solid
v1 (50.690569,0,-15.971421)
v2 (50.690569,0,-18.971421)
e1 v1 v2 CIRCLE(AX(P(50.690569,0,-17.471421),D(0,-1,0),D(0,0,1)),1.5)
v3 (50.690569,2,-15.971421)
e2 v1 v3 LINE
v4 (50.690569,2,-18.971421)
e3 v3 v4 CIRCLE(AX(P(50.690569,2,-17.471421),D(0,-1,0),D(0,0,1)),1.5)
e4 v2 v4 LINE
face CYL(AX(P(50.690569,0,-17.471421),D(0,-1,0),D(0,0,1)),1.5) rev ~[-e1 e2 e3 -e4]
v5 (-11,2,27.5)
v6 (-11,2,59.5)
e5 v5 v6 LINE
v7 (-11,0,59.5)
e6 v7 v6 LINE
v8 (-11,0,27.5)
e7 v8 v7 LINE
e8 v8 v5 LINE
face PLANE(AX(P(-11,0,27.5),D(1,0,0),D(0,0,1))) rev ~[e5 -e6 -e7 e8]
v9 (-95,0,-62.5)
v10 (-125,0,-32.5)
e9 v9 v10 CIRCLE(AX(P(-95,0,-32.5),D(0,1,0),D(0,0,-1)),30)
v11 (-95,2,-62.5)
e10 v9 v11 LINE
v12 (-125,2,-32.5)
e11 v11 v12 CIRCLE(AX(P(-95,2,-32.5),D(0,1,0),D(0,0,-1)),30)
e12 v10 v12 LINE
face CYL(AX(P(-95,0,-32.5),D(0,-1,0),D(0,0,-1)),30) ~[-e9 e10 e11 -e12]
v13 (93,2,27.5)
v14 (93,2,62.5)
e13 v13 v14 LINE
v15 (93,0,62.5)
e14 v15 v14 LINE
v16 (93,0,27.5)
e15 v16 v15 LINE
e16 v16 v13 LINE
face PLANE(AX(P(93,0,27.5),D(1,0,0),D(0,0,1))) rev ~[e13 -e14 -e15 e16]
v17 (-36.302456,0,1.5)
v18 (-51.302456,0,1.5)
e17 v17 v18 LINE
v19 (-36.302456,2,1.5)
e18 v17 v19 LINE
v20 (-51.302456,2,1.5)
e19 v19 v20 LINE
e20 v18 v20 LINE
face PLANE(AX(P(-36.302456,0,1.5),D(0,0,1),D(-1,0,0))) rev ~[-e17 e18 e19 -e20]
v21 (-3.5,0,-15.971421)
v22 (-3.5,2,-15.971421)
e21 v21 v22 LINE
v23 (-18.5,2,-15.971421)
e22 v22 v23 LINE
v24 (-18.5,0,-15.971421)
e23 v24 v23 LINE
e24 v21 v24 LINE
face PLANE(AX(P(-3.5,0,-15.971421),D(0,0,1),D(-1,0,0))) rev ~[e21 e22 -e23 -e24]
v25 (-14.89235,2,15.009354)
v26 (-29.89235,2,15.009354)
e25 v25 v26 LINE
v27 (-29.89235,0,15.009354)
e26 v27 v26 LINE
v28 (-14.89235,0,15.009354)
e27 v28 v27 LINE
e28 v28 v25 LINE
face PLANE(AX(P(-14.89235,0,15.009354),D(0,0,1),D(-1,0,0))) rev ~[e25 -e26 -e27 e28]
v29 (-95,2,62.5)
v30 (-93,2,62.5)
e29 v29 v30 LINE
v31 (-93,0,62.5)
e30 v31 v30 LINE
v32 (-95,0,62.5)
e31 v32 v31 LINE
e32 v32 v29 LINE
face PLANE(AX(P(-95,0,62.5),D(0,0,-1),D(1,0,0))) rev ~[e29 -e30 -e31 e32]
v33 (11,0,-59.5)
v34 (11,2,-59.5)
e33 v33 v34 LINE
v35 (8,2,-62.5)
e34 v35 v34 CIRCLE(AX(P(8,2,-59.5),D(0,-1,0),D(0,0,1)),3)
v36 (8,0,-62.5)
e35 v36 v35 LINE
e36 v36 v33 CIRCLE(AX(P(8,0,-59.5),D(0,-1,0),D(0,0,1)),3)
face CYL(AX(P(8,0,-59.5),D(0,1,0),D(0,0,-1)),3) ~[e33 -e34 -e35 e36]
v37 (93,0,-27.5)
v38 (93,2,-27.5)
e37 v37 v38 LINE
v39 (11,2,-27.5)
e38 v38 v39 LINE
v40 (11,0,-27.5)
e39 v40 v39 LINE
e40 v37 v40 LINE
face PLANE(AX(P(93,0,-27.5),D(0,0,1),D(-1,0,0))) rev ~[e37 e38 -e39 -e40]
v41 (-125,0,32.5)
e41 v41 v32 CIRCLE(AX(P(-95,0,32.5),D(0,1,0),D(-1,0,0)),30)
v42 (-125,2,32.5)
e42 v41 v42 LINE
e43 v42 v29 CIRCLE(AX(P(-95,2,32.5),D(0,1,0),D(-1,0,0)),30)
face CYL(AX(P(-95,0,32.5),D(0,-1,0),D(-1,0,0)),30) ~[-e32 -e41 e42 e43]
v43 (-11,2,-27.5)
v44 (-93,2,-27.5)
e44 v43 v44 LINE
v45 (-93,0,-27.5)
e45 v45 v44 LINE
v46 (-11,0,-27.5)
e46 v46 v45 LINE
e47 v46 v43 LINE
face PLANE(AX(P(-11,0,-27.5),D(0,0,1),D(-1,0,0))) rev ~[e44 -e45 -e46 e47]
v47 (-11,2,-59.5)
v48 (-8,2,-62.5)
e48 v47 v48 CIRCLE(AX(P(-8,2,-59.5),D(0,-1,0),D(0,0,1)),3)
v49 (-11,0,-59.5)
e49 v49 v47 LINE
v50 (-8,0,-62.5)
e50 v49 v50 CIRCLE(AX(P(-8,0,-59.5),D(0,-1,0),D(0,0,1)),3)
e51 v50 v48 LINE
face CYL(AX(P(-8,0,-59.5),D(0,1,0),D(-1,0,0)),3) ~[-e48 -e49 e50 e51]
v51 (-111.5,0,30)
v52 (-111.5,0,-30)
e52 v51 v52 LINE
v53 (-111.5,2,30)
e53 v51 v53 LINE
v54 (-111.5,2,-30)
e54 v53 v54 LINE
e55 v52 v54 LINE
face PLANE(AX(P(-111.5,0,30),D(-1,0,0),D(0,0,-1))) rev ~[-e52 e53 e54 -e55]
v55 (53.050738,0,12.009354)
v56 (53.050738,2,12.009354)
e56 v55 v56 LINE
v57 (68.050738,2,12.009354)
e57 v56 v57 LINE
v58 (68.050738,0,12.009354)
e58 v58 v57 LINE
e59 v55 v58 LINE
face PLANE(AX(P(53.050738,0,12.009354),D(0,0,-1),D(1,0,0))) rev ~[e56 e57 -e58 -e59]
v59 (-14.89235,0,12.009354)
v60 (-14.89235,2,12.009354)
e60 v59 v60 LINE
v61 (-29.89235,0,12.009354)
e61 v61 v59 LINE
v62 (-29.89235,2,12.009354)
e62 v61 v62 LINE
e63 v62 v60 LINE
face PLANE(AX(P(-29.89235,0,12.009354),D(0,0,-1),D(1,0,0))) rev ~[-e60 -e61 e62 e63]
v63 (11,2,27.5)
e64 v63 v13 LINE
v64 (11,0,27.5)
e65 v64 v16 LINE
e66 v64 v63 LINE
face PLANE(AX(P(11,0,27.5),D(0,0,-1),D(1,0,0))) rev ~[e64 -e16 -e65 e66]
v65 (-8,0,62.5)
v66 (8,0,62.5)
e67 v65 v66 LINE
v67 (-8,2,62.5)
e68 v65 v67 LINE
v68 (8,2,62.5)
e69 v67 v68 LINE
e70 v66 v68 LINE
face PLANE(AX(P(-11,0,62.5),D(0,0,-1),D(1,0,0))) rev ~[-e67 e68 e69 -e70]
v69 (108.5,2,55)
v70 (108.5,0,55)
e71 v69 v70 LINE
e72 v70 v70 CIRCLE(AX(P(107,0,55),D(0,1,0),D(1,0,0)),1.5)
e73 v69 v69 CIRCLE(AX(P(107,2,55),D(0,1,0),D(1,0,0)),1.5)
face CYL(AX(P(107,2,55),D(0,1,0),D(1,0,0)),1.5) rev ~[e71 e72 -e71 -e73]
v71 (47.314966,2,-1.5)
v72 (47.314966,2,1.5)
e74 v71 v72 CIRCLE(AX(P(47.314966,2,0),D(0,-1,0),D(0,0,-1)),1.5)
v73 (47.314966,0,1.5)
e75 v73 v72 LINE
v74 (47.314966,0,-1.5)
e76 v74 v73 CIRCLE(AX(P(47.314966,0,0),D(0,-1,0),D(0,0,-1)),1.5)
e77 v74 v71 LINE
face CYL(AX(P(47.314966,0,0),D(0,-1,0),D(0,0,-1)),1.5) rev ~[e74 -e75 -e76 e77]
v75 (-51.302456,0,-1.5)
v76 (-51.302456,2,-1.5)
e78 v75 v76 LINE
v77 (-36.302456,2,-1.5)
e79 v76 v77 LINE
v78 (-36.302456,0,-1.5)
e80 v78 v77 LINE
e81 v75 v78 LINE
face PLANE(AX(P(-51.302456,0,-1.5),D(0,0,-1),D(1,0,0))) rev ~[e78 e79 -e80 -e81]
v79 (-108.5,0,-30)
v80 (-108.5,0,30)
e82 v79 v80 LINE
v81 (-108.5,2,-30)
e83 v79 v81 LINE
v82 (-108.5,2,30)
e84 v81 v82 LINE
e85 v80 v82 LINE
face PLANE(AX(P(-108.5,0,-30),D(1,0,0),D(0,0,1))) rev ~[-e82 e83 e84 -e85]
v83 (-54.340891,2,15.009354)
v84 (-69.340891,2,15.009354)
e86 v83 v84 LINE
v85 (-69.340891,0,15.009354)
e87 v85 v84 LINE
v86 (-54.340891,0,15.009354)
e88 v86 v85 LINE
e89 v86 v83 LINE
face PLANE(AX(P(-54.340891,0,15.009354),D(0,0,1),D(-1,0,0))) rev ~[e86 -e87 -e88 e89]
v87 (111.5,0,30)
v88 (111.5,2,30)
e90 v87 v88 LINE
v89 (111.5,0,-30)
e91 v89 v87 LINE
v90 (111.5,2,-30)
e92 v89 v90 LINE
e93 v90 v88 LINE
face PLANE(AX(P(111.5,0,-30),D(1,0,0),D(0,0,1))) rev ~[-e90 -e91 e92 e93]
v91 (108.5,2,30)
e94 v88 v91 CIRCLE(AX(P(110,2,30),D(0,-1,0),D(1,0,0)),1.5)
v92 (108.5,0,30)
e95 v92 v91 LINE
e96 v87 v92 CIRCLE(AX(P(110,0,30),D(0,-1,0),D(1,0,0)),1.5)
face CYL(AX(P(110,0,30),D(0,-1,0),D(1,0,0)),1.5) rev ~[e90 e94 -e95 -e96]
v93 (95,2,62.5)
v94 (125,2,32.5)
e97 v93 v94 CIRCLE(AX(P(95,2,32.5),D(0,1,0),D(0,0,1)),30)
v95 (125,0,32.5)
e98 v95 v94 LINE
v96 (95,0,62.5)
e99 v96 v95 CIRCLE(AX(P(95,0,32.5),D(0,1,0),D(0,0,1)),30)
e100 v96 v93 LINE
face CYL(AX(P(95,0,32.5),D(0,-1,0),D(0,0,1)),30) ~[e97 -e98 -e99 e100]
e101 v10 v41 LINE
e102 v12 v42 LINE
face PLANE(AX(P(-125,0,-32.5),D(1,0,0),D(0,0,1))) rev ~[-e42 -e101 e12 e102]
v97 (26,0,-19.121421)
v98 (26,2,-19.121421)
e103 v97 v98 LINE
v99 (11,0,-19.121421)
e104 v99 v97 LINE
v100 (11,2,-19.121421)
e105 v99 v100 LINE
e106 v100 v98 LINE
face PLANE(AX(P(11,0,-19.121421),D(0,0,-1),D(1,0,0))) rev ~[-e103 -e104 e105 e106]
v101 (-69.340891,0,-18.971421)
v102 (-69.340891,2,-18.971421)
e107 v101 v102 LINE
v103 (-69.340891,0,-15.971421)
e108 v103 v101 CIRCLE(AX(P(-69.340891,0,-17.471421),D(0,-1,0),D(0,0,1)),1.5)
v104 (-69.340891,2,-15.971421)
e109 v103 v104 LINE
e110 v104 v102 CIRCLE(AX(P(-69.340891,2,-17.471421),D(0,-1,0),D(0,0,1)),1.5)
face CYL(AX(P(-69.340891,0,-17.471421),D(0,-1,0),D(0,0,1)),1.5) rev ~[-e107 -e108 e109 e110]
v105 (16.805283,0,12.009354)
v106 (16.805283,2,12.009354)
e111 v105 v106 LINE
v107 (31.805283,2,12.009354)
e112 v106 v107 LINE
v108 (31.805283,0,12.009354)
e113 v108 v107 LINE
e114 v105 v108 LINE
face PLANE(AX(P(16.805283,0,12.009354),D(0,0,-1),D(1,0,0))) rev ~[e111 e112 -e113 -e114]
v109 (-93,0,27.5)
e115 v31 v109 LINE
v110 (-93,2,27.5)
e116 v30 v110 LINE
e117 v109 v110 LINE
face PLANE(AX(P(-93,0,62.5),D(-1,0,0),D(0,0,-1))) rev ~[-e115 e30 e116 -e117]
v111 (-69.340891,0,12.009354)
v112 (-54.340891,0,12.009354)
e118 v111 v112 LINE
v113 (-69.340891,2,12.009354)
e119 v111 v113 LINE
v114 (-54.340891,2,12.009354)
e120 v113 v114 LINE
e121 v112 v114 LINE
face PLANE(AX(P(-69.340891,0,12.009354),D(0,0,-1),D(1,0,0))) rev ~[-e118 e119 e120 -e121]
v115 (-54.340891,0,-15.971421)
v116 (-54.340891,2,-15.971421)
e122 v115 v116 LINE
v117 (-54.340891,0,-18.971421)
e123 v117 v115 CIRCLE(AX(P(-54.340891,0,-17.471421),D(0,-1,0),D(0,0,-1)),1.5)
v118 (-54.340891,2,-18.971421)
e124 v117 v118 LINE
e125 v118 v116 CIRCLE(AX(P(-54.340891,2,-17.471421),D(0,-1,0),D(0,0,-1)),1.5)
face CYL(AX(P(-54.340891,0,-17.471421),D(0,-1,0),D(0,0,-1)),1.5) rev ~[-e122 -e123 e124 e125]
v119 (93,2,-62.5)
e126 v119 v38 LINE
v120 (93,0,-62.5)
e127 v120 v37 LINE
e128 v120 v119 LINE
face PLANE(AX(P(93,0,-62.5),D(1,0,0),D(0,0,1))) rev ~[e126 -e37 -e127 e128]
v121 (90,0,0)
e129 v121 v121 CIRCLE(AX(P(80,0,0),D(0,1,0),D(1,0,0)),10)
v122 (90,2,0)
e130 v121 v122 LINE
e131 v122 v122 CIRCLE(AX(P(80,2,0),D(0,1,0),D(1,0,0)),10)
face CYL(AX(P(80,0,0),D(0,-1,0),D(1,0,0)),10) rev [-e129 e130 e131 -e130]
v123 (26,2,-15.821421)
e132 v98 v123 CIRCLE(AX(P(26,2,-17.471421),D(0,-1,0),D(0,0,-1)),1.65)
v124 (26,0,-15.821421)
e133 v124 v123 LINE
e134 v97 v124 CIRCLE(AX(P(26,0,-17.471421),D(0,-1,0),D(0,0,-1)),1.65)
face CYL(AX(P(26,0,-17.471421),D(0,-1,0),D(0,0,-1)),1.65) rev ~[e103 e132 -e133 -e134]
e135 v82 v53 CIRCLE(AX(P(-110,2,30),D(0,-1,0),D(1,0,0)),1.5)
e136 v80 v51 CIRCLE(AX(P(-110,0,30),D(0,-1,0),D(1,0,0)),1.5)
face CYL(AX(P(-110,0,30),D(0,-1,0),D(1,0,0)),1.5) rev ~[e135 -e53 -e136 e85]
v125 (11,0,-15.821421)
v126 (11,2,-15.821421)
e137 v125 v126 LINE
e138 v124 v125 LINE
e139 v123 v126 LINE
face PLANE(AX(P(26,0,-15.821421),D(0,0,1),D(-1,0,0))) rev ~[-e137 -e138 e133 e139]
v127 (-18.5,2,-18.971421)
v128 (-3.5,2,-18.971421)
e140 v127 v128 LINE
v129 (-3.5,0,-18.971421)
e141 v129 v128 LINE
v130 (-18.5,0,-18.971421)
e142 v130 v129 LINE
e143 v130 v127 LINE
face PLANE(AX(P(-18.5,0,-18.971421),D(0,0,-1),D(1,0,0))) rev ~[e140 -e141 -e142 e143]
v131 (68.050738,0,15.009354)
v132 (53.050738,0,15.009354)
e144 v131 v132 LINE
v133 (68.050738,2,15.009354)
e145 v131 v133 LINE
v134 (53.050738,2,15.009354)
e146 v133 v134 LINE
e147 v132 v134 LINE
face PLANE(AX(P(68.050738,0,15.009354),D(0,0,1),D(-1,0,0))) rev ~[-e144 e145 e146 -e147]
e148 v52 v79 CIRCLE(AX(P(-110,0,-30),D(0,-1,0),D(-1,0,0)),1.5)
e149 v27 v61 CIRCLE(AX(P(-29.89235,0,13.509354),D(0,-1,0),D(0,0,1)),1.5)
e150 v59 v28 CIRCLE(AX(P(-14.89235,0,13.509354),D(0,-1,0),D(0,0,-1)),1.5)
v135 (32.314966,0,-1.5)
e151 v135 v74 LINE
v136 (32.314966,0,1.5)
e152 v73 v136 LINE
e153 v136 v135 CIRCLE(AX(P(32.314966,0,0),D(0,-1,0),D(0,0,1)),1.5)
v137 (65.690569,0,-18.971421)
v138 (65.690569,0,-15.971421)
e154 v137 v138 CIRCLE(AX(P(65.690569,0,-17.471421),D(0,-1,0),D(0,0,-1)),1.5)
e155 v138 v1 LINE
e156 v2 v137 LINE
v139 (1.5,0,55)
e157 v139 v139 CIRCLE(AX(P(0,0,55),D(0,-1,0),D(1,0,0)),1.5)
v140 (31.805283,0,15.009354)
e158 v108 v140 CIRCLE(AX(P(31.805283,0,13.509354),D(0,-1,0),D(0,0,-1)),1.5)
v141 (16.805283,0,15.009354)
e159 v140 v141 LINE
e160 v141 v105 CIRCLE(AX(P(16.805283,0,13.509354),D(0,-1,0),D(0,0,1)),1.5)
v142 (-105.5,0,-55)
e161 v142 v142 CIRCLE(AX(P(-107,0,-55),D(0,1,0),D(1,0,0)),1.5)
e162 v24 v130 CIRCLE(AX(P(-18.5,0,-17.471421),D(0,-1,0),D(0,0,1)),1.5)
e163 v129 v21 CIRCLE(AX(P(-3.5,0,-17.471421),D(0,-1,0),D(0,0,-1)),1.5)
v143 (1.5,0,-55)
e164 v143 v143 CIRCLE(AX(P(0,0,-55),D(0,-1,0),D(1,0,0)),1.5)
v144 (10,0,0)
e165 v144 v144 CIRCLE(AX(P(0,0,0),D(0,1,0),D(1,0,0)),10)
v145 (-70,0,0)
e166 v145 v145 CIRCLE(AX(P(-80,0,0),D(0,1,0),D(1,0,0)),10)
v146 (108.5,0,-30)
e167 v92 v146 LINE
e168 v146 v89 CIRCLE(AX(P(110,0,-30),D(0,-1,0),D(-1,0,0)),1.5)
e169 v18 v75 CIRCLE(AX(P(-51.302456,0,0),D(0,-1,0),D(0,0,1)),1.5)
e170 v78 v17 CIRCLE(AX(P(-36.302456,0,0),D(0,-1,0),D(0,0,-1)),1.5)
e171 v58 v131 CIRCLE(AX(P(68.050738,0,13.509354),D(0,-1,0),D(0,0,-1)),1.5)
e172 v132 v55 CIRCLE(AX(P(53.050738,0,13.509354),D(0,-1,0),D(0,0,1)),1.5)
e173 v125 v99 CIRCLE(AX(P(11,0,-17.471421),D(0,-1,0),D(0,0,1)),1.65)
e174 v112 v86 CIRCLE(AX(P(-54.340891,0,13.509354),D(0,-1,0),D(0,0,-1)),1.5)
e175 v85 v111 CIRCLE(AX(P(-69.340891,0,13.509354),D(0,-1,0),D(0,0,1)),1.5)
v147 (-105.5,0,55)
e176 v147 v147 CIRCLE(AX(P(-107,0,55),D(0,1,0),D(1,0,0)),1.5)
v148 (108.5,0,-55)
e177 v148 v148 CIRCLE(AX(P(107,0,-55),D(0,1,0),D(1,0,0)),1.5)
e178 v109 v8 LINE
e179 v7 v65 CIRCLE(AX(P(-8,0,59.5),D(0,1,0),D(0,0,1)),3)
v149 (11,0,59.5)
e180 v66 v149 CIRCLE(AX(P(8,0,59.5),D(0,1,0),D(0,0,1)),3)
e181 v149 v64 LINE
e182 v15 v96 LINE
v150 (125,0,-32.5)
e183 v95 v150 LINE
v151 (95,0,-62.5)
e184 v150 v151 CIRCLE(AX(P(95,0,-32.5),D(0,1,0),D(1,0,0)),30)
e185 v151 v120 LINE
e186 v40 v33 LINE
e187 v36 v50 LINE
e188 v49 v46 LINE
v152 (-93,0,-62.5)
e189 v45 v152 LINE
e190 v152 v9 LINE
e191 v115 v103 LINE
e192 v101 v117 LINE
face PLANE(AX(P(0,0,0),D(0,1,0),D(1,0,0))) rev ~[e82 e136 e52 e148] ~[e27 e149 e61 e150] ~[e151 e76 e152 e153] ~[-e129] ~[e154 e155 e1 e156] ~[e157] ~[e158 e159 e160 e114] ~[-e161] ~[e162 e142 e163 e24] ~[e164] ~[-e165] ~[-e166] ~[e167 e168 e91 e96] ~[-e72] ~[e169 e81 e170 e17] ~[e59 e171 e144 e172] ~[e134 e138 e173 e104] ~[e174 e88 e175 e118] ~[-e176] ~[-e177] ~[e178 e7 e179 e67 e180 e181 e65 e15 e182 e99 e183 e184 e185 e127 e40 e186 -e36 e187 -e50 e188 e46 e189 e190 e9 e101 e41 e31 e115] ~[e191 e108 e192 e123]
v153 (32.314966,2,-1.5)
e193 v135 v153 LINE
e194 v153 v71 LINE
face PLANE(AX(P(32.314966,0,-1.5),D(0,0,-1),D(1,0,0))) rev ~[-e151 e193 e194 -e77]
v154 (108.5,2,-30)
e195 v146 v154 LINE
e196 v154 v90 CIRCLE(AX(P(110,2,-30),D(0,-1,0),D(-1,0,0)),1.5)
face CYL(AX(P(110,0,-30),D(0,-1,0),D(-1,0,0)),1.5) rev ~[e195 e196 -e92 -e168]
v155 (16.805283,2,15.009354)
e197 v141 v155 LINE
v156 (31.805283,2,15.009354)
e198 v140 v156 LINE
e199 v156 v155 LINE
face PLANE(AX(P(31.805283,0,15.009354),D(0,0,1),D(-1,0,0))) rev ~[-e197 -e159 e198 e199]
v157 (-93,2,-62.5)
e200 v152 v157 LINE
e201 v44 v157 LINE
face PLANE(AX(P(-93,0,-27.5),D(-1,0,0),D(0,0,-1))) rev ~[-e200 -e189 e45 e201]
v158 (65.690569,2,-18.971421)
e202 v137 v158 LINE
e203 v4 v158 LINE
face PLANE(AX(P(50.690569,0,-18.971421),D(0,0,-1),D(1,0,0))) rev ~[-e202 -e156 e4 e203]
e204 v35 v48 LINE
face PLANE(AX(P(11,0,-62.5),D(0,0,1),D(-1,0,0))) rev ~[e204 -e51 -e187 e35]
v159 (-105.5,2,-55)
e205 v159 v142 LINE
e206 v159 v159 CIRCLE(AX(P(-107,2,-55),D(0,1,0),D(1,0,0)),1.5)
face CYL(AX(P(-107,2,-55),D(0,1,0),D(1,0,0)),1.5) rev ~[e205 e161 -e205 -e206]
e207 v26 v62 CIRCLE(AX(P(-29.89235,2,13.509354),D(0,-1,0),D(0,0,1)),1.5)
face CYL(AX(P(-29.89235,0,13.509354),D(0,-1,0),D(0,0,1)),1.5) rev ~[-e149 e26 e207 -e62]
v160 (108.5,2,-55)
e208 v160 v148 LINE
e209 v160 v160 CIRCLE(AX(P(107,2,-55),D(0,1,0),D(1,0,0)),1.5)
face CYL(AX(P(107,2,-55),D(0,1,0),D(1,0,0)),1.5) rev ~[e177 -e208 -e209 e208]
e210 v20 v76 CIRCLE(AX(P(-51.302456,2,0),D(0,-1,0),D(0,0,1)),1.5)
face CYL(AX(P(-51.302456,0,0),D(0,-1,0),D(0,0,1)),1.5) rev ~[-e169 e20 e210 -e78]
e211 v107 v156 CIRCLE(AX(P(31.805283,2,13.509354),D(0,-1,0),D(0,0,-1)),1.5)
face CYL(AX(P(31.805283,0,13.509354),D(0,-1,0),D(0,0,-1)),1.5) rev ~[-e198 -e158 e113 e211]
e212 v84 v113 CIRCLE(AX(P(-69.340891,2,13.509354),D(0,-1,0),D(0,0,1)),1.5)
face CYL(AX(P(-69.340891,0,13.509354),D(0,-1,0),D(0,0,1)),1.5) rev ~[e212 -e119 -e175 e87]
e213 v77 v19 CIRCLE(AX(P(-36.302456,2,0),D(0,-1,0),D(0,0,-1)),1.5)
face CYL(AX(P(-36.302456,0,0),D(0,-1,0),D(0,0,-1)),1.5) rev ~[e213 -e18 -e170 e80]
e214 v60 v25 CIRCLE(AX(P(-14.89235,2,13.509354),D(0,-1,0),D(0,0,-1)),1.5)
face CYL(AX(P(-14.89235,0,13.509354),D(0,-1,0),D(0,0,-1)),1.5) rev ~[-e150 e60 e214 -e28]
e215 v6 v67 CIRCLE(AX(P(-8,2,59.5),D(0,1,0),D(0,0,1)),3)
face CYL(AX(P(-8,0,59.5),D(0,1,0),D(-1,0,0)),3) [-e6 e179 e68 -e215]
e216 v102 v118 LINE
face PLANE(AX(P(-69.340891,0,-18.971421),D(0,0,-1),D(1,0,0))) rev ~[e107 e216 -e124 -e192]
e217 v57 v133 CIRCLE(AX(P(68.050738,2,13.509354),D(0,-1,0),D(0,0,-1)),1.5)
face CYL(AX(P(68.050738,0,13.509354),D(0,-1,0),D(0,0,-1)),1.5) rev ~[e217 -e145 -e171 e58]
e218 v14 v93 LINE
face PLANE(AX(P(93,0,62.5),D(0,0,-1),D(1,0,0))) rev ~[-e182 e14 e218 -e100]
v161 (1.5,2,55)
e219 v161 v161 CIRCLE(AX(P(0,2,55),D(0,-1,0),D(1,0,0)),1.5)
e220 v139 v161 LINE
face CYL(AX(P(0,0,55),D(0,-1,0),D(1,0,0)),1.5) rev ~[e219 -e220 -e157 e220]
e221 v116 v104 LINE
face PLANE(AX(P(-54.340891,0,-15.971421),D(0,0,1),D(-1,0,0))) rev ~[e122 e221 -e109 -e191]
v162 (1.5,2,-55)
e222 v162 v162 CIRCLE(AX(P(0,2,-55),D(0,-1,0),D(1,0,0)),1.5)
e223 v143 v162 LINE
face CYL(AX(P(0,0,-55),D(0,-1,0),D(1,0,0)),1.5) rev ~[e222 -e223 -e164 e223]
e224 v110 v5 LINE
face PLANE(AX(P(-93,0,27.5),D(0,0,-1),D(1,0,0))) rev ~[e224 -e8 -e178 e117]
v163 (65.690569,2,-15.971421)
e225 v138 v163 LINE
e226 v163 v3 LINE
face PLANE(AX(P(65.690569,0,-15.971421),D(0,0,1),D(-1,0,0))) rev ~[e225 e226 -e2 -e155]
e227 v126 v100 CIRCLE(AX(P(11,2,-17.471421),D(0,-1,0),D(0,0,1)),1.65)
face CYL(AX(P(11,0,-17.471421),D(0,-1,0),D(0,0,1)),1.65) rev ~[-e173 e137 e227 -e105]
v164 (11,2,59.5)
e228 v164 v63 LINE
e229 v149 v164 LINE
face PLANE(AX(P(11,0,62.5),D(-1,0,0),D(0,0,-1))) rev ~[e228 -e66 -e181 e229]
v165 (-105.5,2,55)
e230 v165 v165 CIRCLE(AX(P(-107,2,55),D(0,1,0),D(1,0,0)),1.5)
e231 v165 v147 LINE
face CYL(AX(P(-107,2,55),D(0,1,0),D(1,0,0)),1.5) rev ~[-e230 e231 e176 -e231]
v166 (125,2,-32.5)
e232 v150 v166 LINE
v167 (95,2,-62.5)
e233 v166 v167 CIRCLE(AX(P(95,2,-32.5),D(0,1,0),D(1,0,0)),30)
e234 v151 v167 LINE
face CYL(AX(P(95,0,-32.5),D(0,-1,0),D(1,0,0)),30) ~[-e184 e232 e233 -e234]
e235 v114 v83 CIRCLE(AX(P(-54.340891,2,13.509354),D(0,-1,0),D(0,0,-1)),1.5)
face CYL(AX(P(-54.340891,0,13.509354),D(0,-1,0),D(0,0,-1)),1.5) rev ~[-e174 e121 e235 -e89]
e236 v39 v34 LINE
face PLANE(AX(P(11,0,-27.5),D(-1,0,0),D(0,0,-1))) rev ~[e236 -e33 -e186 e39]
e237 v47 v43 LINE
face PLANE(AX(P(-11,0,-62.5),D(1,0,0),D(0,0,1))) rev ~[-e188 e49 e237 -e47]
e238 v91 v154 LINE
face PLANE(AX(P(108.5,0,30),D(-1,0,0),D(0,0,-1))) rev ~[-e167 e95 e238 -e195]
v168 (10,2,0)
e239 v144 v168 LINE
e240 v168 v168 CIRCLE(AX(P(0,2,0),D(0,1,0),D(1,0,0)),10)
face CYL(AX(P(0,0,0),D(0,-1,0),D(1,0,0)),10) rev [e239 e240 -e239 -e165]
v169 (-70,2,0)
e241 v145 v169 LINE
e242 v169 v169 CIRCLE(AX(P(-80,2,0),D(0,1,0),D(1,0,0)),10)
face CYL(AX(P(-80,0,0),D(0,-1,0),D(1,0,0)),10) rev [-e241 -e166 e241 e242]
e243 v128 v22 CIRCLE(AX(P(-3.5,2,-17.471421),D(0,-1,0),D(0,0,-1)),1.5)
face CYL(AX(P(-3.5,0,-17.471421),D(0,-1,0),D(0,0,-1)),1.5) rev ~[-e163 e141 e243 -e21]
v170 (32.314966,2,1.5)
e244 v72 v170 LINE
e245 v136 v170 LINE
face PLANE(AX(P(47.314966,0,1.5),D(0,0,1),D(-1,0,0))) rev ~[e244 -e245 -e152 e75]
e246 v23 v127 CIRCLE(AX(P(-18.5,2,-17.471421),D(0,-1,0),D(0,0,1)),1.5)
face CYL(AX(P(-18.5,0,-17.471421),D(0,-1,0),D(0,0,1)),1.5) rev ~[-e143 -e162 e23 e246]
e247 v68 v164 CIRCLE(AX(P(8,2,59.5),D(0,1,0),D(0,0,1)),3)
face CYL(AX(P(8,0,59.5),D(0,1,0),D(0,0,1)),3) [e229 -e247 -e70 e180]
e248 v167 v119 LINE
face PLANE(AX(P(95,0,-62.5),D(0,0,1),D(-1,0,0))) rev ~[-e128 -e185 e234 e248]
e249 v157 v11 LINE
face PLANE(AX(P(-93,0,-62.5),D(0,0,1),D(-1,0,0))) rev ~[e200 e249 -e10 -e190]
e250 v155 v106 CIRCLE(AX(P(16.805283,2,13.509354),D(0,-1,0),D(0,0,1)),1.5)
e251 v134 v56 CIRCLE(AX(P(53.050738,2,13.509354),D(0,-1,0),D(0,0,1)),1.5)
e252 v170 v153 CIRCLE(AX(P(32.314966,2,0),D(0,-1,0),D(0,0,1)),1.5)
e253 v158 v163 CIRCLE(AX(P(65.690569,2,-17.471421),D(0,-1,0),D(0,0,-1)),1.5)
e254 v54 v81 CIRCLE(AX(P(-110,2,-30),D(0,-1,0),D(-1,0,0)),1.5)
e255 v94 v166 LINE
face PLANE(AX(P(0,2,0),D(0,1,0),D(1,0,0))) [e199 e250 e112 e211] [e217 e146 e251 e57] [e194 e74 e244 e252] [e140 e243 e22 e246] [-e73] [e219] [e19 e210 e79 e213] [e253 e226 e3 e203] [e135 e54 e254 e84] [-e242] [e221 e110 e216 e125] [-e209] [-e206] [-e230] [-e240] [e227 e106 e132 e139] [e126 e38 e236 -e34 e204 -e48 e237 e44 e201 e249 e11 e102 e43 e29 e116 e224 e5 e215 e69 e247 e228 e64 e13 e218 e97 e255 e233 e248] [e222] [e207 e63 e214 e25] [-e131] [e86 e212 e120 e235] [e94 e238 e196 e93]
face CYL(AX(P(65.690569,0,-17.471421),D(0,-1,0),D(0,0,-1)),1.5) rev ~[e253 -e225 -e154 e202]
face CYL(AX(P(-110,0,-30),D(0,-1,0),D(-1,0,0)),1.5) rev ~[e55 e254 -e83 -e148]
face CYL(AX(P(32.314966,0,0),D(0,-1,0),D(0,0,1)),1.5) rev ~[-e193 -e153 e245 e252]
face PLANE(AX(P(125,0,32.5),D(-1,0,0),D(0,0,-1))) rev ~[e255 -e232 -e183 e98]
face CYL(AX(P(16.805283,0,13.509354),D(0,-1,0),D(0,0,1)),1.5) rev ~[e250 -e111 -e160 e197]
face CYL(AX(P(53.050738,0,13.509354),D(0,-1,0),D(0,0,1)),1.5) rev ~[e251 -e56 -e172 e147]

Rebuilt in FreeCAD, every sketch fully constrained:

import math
import FreeCAD as App
import Part
import Sketcher

V = App.Vector
Q = App.Units.Quantity


def edges_at(feature, points):
    """Names of the edges that pass closest to the given points."""
    edges = feature.Shape.Edges
    near = lambda p: min(range(len(edges)), key=lambda i: edges[i].distToShape(Part.Vertex(*p))[0])
    return sorted({f"Edge{near(p) + 1}" for p in points})

doc = App.newDocument("Part")
params = doc.addObject("Spreadsheet::Sheet", "Params")
for row, (alias, value) in enumerate([
    ("sketch1_diameter", "20 mm"),
    ("sketch1_radius", "30 mm"),
    ("sketch1_radius2", "1.5 mm"),
    ("sketch1_width", "2 mm"),
    ("sketch1_width2", "82 mm"),
    ("pad1_length", "2 mm"),
    ("fillet_radius", "3 mm"),
    ("sketch2_diameter", "3 mm"),
    ("sketch3_diameter", "3 mm"),
    ("pocket2_length", "10 mm"),
], start=1):
    params.set(f"A{row}", alias)
    params.set(f"B{row}", "=" + value)
    params.setAlias(f"B{row}", alias)

body = doc.addObject("PartDesign::Body", "Body")

# Sketch on XZ plane
sketch1 = body.newObject("Sketcher::SketchObject", "Sketch")
sketch1.AttachmentSupport = (doc.getObject("XZ_Plane"), [""])
sketch1.MapMode = "FlatFace"
sketch1.addGeometry(Part.ArcOfCircle(Part.Circle(V(-95, 32.5, 0), V(0, 0, 1), 30), math.radians(90), math.radians(180)), False)
sketch1.addGeometry(Part.LineSegment(V(-95, 62.5, 0), V(-93, 62.5, 0)), False)
sketch1.addGeometry(Part.LineSegment(V(-93, 62.5, 0), V(-93, 27.5, 0)), False)
sketch1.addGeometry(Part.LineSegment(V(-93, 27.5, 0), V(-11, 27.5, 0)), False)
sketch1.addGeometry(Part.LineSegment(V(-11, 27.5, 0), V(-11, 62.5, 0)), False)
sketch1.addGeometry(Part.LineSegment(V(-11, 62.5, 0), V(11, 62.5, 0)), False)
sketch1.addGeometry(Part.LineSegment(V(11, 62.5, 0), V(11, 27.5, 0)), False)
sketch1.addGeometry(Part.LineSegment(V(11, 27.5, 0), V(93, 27.5, 0)), False)
sketch1.addGeometry(Part.LineSegment(V(93, 27.5, 0), V(93, 62.5, 0)), False)
sketch1.addGeometry(Part.LineSegment(V(93, 62.5, 0), V(95, 62.5, 0)), False)
sketch1.addGeometry(Part.ArcOfCircle(Part.Circle(V(95, 32.5, 0), V(0, 0, 1), 30), math.radians(0), math.radians(90)), False)
sketch1.addGeometry(Part.LineSegment(V(125, 32.5, 0), V(125, -32.5, 0)), False)
sketch1.addGeometry(Part.ArcOfCircle(Part.Circle(V(95, -32.5, 0), V(0, 0, 1), 30), math.radians(-90), math.radians(0)), False)
sketch1.addGeometry(Part.LineSegment(V(95, -62.5, 0), V(93, -62.5, 0)), False)
sketch1.addGeometry(Part.LineSegment(V(93, -62.5, 0), V(93, -27.5, 0)), False)
sketch1.addGeometry(Part.LineSegment(V(93, -27.5, 0), V(11, -27.5, 0)), False)
sketch1.addGeometry(Part.LineSegment(V(11, -27.5, 0), V(11, -62.5, 0)), False)
sketch1.addGeometry(Part.LineSegment(V(11, -62.5, 0), V(-11, -62.5, 0)), False)
sketch1.addGeometry(Part.LineSegment(V(-11, -62.5, 0), V(-11, -27.5, 0)), False)
sketch1.addGeometry(Part.LineSegment(V(-11, -27.5, 0), V(-93, -27.5, 0)), False)
sketch1.addGeometry(Part.LineSegment(V(-93, -27.5, 0), V(-93, -62.5, 0)), False)
sketch1.addGeometry(Part.LineSegment(V(-93, -62.5, 0), V(-95, -62.5, 0)), False)
sketch1.addGeometry(Part.ArcOfCircle(Part.Circle(V(-95, -32.5, 0), V(0, 0, 1), 30), math.radians(180), math.radians(270)), False)
sketch1.addGeometry(Part.LineSegment(V(-125, -32.5, 0), V(-125, 32.5, 0)), False)
sketch1.addGeometry(Part.LineSegment(V(-54.340891, 15.009354, 0), V(-69.340891, 15.009354, 0)), False)
sketch1.addGeometry(Part.ArcOfCircle(Part.Circle(V(-69.340891, 13.509354, 0), V(0, 0, 1), 1.5), math.radians(90), math.radians(270)), False)
sketch1.addGeometry(Part.LineSegment(V(-69.340891, 12.009354, 0), V(-54.340891, 12.009354, 0)), False)
sketch1.addGeometry(Part.ArcOfCircle(Part.Circle(V(-54.340891, 13.509354, 0), V(0, 0, 1), 1.5), math.radians(-90), math.radians(90)), False)
sketch1.addGeometry(Part.LineSegment(V(-14.89235, 15.009354, 0), V(-29.89235, 15.009354, 0)), False)
sketch1.addGeometry(Part.ArcOfCircle(Part.Circle(V(-29.89235, 13.509354, 0), V(0, 0, 1), 1.5), math.radians(90), math.radians(270)), False)
sketch1.addGeometry(Part.LineSegment(V(-29.89235, 12.009354, 0), V(-14.89235, 12.009354, 0)), False)
sketch1.addGeometry(Part.ArcOfCircle(Part.Circle(V(-14.89235, 13.509354, 0), V(0, 0, 1), 1.5), math.radians(-90), math.radians(90)), False)
sketch1.addGeometry(Part.LineSegment(V(31.805283, 15.009354, 0), V(16.805283, 15.009354, 0)), False)
sketch1.addGeometry(Part.ArcOfCircle(Part.Circle(V(16.805283, 13.509354, 0), V(0, 0, 1), 1.5), math.radians(90), math.radians(270)), False)
sketch1.addGeometry(Part.LineSegment(V(16.805283, 12.009354, 0), V(31.805283, 12.009354, 0)), False)
sketch1.addGeometry(Part.ArcOfCircle(Part.Circle(V(31.805283, 13.509354, 0), V(0, 0, 1), 1.5), math.radians(-90), math.radians(90)), False)
sketch1.addGeometry(Part.LineSegment(V(68.050738, 15.009354, 0), V(53.050738, 15.009354, 0)), False)
sketch1.addGeometry(Part.ArcOfCircle(Part.Circle(V(53.050738, 13.509354, 0), V(0, 0, 1), 1.5), math.radians(90), math.radians(270)), False)
sketch1.addGeometry(Part.LineSegment(V(53.050738, 12.009354, 0), V(68.050738, 12.009354, 0)), False)
sketch1.addGeometry(Part.ArcOfCircle(Part.Circle(V(68.050738, 13.509354, 0), V(0, 0, 1), 1.5), math.radians(-90), math.radians(90)), False)
sketch1.addGeometry(Part.LineSegment(V(-111.5, 30, 0), V(-111.5, -30, 0)), False)
sketch1.addGeometry(Part.ArcOfCircle(Part.Circle(V(-110, -30, 0), V(0, 0, 1), 1.5), math.radians(180), math.radians(360)), False)
sketch1.addGeometry(Part.LineSegment(V(-108.5, -30, 0), V(-108.5, 30, 0)), False)
sketch1.addGeometry(Part.ArcOfCircle(Part.Circle(V(-110, 30, 0), V(0, 0, 1), 1.5), math.radians(0), math.radians(180)), False)
sketch1.addGeometry(Part.Circle(V(-80, 0, 0), V(0, 0, 1), 10), False)
sketch1.addGeometry(Part.LineSegment(V(-36.302456, 1.5, 0), V(-51.302456, 1.5, 0)), False)
sketch1.addGeometry(Part.ArcOfCircle(Part.Circle(V(-51.302456, 0, 0), V(0, 0, 1), 1.5), math.radians(90), math.radians(270)), False)
sketch1.addGeometry(Part.LineSegment(V(-51.302456, -1.5, 0), V(-36.302456, -1.5, 0)), False)
sketch1.addGeometry(Part.ArcOfCircle(Part.Circle(V(-36.302456, 0, 0), V(0, 0, 1), 1.5), math.radians(-90), math.radians(90)), False)
sketch1.addGeometry(Part.LineSegment(V(-54.340891, -15.971421, 0), V(-69.340891, -15.971421, 0)), False)
sketch1.addGeometry(Part.ArcOfCircle(Part.Circle(V(-69.340891, -17.471421, 0), V(0, 0, 1), 1.5), math.radians(90), math.radians(270)), False)
sketch1.addGeometry(Part.LineSegment(V(-69.340891, -18.971421, 0), V(-54.340891, -18.971421, 0)), False)
sketch1.addGeometry(Part.ArcOfCircle(Part.Circle(V(-54.340891, -17.471421, 0), V(0, 0, 1), 1.5), math.radians(-90), math.radians(90)), False)
sketch1.addGeometry(Part.LineSegment(V(-3.5, -15.971421, 0), V(-18.5, -15.971421, 0)), False)
sketch1.addGeometry(Part.ArcOfCircle(Part.Circle(V(-18.5, -17.471421, 0), V(0, 0, 1), 1.5), math.radians(90), math.radians(270)), False)
sketch1.addGeometry(Part.LineSegment(V(-18.5, -18.971421, 0), V(-3.5, -18.971421, 0)), False)
sketch1.addGeometry(Part.ArcOfCircle(Part.Circle(V(-3.5, -17.471421, 0), V(0, 0, 1), 1.5), math.radians(-90), math.radians(90)), False)
sketch1.addGeometry(Part.Circle(V(0, 0, 0), V(0, 0, 1), 10), False)
sketch1.addGeometry(Part.LineSegment(V(47.314966, 1.5, 0), V(32.314966, 1.5, 0)), False)
sketch1.addGeometry(Part.ArcOfCircle(Part.Circle(V(32.314966, 0, 0), V(0, 0, 1), 1.5), math.radians(90), math.radians(270)), False)
sketch1.addGeometry(Part.LineSegment(V(32.314966, -1.5, 0), V(47.314966, -1.5, 0)), False)
sketch1.addGeometry(Part.ArcOfCircle(Part.Circle(V(47.314966, 0, 0), V(0, 0, 1), 1.5), math.radians(-90), math.radians(90)), False)
sketch1.addGeometry(Part.Circle(V(80, 0, 0), V(0, 0, 1), 10), False)
sketch1.addGeometry(Part.LineSegment(V(108.5, 30, 0), V(108.5, -30, 0)), False)
sketch1.addGeometry(Part.ArcOfCircle(Part.Circle(V(110, -30, 0), V(0, 0, 1), 1.5), math.radians(180), math.radians(360)), False)
sketch1.addGeometry(Part.LineSegment(V(111.5, -30, 0), V(111.5, 30, 0)), False)
sketch1.addGeometry(Part.ArcOfCircle(Part.Circle(V(110, 30, 0), V(0, 0, 1), 1.5), math.radians(0), math.radians(180)), False)
sketch1.addGeometry(Part.LineSegment(V(26, -15.821421, 0), V(11, -15.821421, 0)), False)
sketch1.addGeometry(Part.ArcOfCircle(Part.Circle(V(11, -17.471421, 0), V(0, 0, 1), 1.65), math.radians(90), math.radians(270)), False)
sketch1.addGeometry(Part.LineSegment(V(11, -19.121421, 0), V(26, -19.121421, 0)), False)
sketch1.addGeometry(Part.ArcOfCircle(Part.Circle(V(26, -17.471421, 0), V(0, 0, 1), 1.65), math.radians(-90), math.radians(90)), False)
sketch1.addGeometry(Part.LineSegment(V(65.690569, -15.971421, 0), V(50.690569, -15.971421, 0)), False)
sketch1.addGeometry(Part.ArcOfCircle(Part.Circle(V(50.690569, -17.471421, 0), V(0, 0, 1), 1.5), math.radians(90), math.radians(270)), False)
sketch1.addGeometry(Part.LineSegment(V(50.690569, -18.971421, 0), V(65.690569, -18.971421, 0)), False)
sketch1.addGeometry(Part.ArcOfCircle(Part.Circle(V(65.690569, -17.471421, 0), V(0, 0, 1), 1.5), math.radians(-90), math.radians(90)), False)
sketch1.addConstraint(Sketcher.Constraint("Tangent", 0, 1, 1, 1))
sketch1.addConstraint(Sketcher.Constraint("Coincident", 1, 2, 2, 1))
sketch1.addConstraint(Sketcher.Constraint("Coincident", 2, 2, 3, 1))
sketch1.addConstraint(Sketcher.Constraint("Coincident", 3, 2, 4, 1))
sketch1.addConstraint(Sketcher.Constraint("Coincident", 4, 2, 5, 1))
sketch1.addConstraint(Sketcher.Constraint("Coincident", 5, 2, 6, 1))
sketch1.addConstraint(Sketcher.Constraint("Coincident", 6, 2, 7, 1))
sketch1.addConstraint(Sketcher.Constraint("Coincident", 7, 2, 8, 1))
sketch1.addConstraint(Sketcher.Constraint("Coincident", 8, 2, 9, 1))
sketch1.addConstraint(Sketcher.Constraint("Tangent", 9, 2, 10, 2))
sketch1.addConstraint(Sketcher.Constraint("Tangent", 10, 1, 11, 1))
sketch1.addConstraint(Sketcher.Constraint("Tangent", 11, 2, 12, 2))
sketch1.addConstraint(Sketcher.Constraint("Tangent", 12, 1, 13, 1))
sketch1.addConstraint(Sketcher.Constraint("Coincident", 13, 2, 14, 1))
sketch1.addConstraint(Sketcher.Constraint("Coincident", 14, 2, 15, 1))
sketch1.addConstraint(Sketcher.Constraint("Coincident", 15, 2, 16, 1))
sketch1.addConstraint(Sketcher.Constraint("Coincident", 16, 2, 17, 1))
sketch1.addConstraint(Sketcher.Constraint("Coincident", 17, 2, 18, 1))
sketch1.addConstraint(Sketcher.Constraint("Coincident", 18, 2, 19, 1))
sketch1.addConstraint(Sketcher.Constraint("Coincident", 19, 2, 20, 1))
sketch1.addConstraint(Sketcher.Constraint("Coincident", 20, 2, 21, 1))
sketch1.addConstraint(Sketcher.Constraint("Tangent", 21, 2, 22, 2))
sketch1.addConstraint(Sketcher.Constraint("Tangent", 22, 1, 23, 1))
sketch1.addConstraint(Sketcher.Constraint("Tangent", 23, 2, 0, 2))
sketch1.addConstraint(Sketcher.Constraint("Tangent", 24, 2, 25, 1))
sketch1.addConstraint(Sketcher.Constraint("Tangent", 25, 2, 26, 1))
sketch1.addConstraint(Sketcher.Constraint("Tangent", 26, 2, 27, 1))
sketch1.addConstraint(Sketcher.Constraint("Tangent", 27, 2, 24, 1))
sketch1.addConstraint(Sketcher.Constraint("Tangent", 28, 2, 29, 1))
sketch1.addConstraint(Sketcher.Constraint("Tangent", 29, 2, 30, 1))
sketch1.addConstraint(Sketcher.Constraint("Tangent", 30, 2, 31, 1))
sketch1.addConstraint(Sketcher.Constraint("Tangent", 31, 2, 28, 1))
sketch1.addConstraint(Sketcher.Constraint("Tangent", 32, 2, 33, 1))
sketch1.addConstraint(Sketcher.Constraint("Tangent", 33, 2, 34, 1))
sketch1.addConstraint(Sketcher.Constraint("Tangent", 34, 2, 35, 1))
sketch1.addConstraint(Sketcher.Constraint("Tangent", 35, 2, 32, 1))
sketch1.addConstraint(Sketcher.Constraint("Tangent", 36, 2, 37, 1))
sketch1.addConstraint(Sketcher.Constraint("Tangent", 37, 2, 38, 1))
sketch1.addConstraint(Sketcher.Constraint("Tangent", 38, 2, 39, 1))
sketch1.addConstraint(Sketcher.Constraint("Tangent", 39, 2, 36, 1))
sketch1.addConstraint(Sketcher.Constraint("Tangent", 40, 2, 41, 1))
sketch1.addConstraint(Sketcher.Constraint("Tangent", 41, 2, 42, 1))
sketch1.addConstraint(Sketcher.Constraint("Tangent", 42, 2, 43, 1))
sketch1.addConstraint(Sketcher.Constraint("Tangent", 43, 2, 40, 1))
sketch1.addConstraint(Sketcher.Constraint("Tangent", 45, 2, 46, 1))
sketch1.addConstraint(Sketcher.Constraint("Tangent", 46, 2, 47, 1))
sketch1.addConstraint(Sketcher.Constraint("Tangent", 47, 2, 48, 1))
sketch1.addConstraint(Sketcher.Constraint("Tangent", 48, 2, 45, 1))
sketch1.addConstraint(Sketcher.Constraint("Tangent", 49, 2, 50, 1))
sketch1.addConstraint(Sketcher.Constraint("Tangent", 50, 2, 51, 1))
sketch1.addConstraint(Sketcher.Constraint("Tangent", 51, 2, 52, 1))
sketch1.addConstraint(Sketcher.Constraint("Tangent", 52, 2, 49, 1))
sketch1.addConstraint(Sketcher.Constraint("Tangent", 53, 2, 54, 1))
sketch1.addConstraint(Sketcher.Constraint("Tangent", 54, 2, 55, 1))
sketch1.addConstraint(Sketcher.Constraint("Tangent", 55, 2, 56, 1))
sketch1.addConstraint(Sketcher.Constraint("Tangent", 56, 2, 53, 1))
sketch1.addConstraint(Sketcher.Constraint("Tangent", 58, 2, 59, 1))
sketch1.addConstraint(Sketcher.Constraint("Tangent", 59, 2, 60, 1))
sketch1.addConstraint(Sketcher.Constraint("Tangent", 60, 2, 61, 1))
sketch1.addConstraint(Sketcher.Constraint("Tangent", 61, 2, 58, 1))
sketch1.addConstraint(Sketcher.Constraint("Tangent", 63, 2, 64, 1))
sketch1.addConstraint(Sketcher.Constraint("Tangent", 64, 2, 65, 1))
sketch1.addConstraint(Sketcher.Constraint("Tangent", 65, 2, 66, 1))
sketch1.addConstraint(Sketcher.Constraint("Tangent", 66, 2, 63, 1))
sketch1.addConstraint(Sketcher.Constraint("Tangent", 67, 2, 68, 1))
sketch1.addConstraint(Sketcher.Constraint("Tangent", 68, 2, 69, 1))
sketch1.addConstraint(Sketcher.Constraint("Tangent", 69, 2, 70, 1))
sketch1.addConstraint(Sketcher.Constraint("Tangent", 70, 2, 67, 1))
sketch1.addConstraint(Sketcher.Constraint("Tangent", 71, 2, 72, 1))
sketch1.addConstraint(Sketcher.Constraint("Tangent", 72, 2, 73, 1))
sketch1.addConstraint(Sketcher.Constraint("Tangent", 73, 2, 74, 1))
sketch1.addConstraint(Sketcher.Constraint("Tangent", 74, 2, 71, 1))
sketch1.addConstraint(Sketcher.Constraint("Horizontal", 1))
sketch1.addConstraint(Sketcher.Constraint("Vertical", 2))
sketch1.addConstraint(Sketcher.Constraint("Horizontal", 3))
sketch1.addConstraint(Sketcher.Constraint("Vertical", 4))
sketch1.addConstraint(Sketcher.Constraint("Horizontal", 5))
sketch1.addConstraint(Sketcher.Constraint("Vertical", 6))
sketch1.addConstraint(Sketcher.Constraint("Horizontal", 7))
sketch1.addConstraint(Sketcher.Constraint("Vertical", 8))
sketch1.addConstraint(Sketcher.Constraint("Horizontal", 9))
sketch1.addConstraint(Sketcher.Constraint("Vertical", 11))
sketch1.addConstraint(Sketcher.Constraint("Horizontal", 13))
sketch1.addConstraint(Sketcher.Constraint("Vertical", 14))
sketch1.addConstraint(Sketcher.Constraint("Horizontal", 15))
sketch1.addConstraint(Sketcher.Constraint("Vertical", 16))
sketch1.addConstraint(Sketcher.Constraint("Horizontal", 17))
sketch1.addConstraint(Sketcher.Constraint("Vertical", 18))
sketch1.addConstraint(Sketcher.Constraint("Horizontal", 19))
sketch1.addConstraint(Sketcher.Constraint("Vertical", 20))
sketch1.addConstraint(Sketcher.Constraint("Horizontal", 21))
sketch1.addConstraint(Sketcher.Constraint("Vertical", 23))
sketch1.addConstraint(Sketcher.Constraint("Horizontal", 24))
sketch1.addConstraint(Sketcher.Constraint("Horizontal", 26))
sketch1.addConstraint(Sketcher.Constraint("Horizontal", 28))
sketch1.addConstraint(Sketcher.Constraint("Horizontal", 30))
sketch1.addConstraint(Sketcher.Constraint("Horizontal", 32))
sketch1.addConstraint(Sketcher.Constraint("Horizontal", 34))
sketch1.addConstraint(Sketcher.Constraint("Horizontal", 36))
sketch1.addConstraint(Sketcher.Constraint("Horizontal", 38))
sketch1.addConstraint(Sketcher.Constraint("Vertical", 40))
sketch1.addConstraint(Sketcher.Constraint("Vertical", 42))
sketch1.addConstraint(Sketcher.Constraint("Horizontal", 45))
sketch1.addConstraint(Sketcher.Constraint("Horizontal", 47))
sketch1.addConstraint(Sketcher.Constraint("Horizontal", 49))
sketch1.addConstraint(Sketcher.Constraint("Horizontal", 51))
sketch1.addConstraint(Sketcher.Constraint("Horizontal", 53))
sketch1.addConstraint(Sketcher.Constraint("Horizontal", 55))
sketch1.addConstraint(Sketcher.Constraint("Horizontal", 58))
sketch1.addConstraint(Sketcher.Constraint("Horizontal", 60))
sketch1.addConstraint(Sketcher.Constraint("Vertical", 63))
sketch1.addConstraint(Sketcher.Constraint("Vertical", 65))
sketch1.addConstraint(Sketcher.Constraint("Horizontal", 67))
sketch1.addConstraint(Sketcher.Constraint("Horizontal", 69))
sketch1.addConstraint(Sketcher.Constraint("Horizontal", 71))
sketch1.addConstraint(Sketcher.Constraint("Horizontal", 73))
sketch1.addConstraint(Sketcher.Constraint("Coincident", 57, 3, -1, 1))
sketch1.addConstraint(Sketcher.Constraint("Equal", 0, 10))
sketch1.addConstraint(Sketcher.Constraint("Equal", 10, 12))
sketch1.addConstraint(Sketcher.Constraint("Equal", 12, 22))
sketch1.addConstraint(Sketcher.Constraint("Equal", 27, 29))
sketch1.addConstraint(Sketcher.Constraint("Equal", 31, 33))
sketch1.addConstraint(Sketcher.Constraint("Equal", 35, 37))
sketch1.addConstraint(Sketcher.Constraint("Equal", 39, 41))
sketch1.addConstraint(Sketcher.Constraint("Equal", 43, 46))
sketch1.addConstraint(Sketcher.Constraint("Equal", 48, 50))
sketch1.addConstraint(Sketcher.Constraint("Equal", 52, 54))
sketch1.addConstraint(Sketcher.Constraint("Equal", 44, 57))
sketch1.addConstraint(Sketcher.Constraint("Equal", 56, 59))
sketch1.addConstraint(Sketcher.Constraint("Equal", 57, 62))
sketch1.addConstraint(Sketcher.Constraint("Equal", 61, 64))
sketch1.addConstraint(Sketcher.Constraint("Equal", 66, 72))
sketch1.addConstraint(Sketcher.Constraint("Symmetric", 0, 3, 12, 3, -1, 1))
sketch1.addConstraint(Sketcher.Constraint("Symmetric", 44, 3, 62, 3, -1, 1))
sketch1.addConstraint(Sketcher.Constraint("Symmetric", 43, 3, 64, 3, -1, 1))
sketch1.addConstraint(Sketcher.Constraint("Symmetric", 2, 2, 14, 2, -1, 1))
sketch1.addConstraint(Sketcher.Constraint("Symmetric", 4, 2, 16, 2, -1, 1))
sketch1.addConstraint(Sketcher.Constraint("Symmetric", 6, 2, 18, 2, -1, 1))
sketch1.addConstraint(Sketcher.Constraint("Symmetric", 8, 2, 20, 2, -1, 1))
sketch1.addConstraint(Sketcher.Constraint("Symmetric", 3, 2, 6, 2, -2))
sketch1.addConstraint(Sketcher.Constraint("Symmetric", 1, 2, 8, 2, -2))
sketch1.addConstraint(Sketcher.Constraint("PointOnObject", 44, 3, -1))
sketch1.addConstraint(Sketcher.Constraint("PointOnObject", 46, 3, -1))
sketch1.addConstraint(Sketcher.Constraint("PointOnObject", 59, 3, -1))
sketch1.addConstraint(Sketcher.Constraint("Horizontal", 27, 3, 29, 3))
sketch1.addConstraint(Sketcher.Constraint("Horizontal", 31, 3, 33, 3))
sketch1.addConstraint(Sketcher.Constraint("Horizontal", 35, 3, 37, 3))
sketch1.addConstraint(Sketcher.Constraint("Horizontal", 52, 3, 54, 3))
sketch1.addConstraint(Sketcher.Constraint("Horizontal", 41, 3, 64, 3))
sketch1.addConstraint(Sketcher.Constraint("Horizontal", 43, 3, 66, 3))
sketch1.addConstraint(Sketcher.Constraint("Horizontal", 56, 3, 68, 3))
sketch1.addConstraint(Sketcher.Constraint("Horizontal", 70, 3, 72, 3))
sketch1.addConstraint(Sketcher.Constraint("Horizontal", 1, 2, 4, 2))
sketch1.addConstraint(Sketcher.Constraint("Vertical", 25, 3, 50, 3))
sketch1.addConstraint(Sketcher.Constraint("Vertical", 27, 3, 52, 3))
sketch1.addConstraint(Sketcher.Constraint("Vertical", 68, 3, 5, 2))
sketch1.addConstraint(Sketcher.Constraint("Equal", 26, 28))
sketch1.addConstraint(Sketcher.Constraint("Equal", 30, 32))
sketch1.addConstraint(Sketcher.Constraint("Equal", 34, 36))
sketch1.addConstraint(Sketcher.Constraint("Equal", 38, 45))
sketch1.addConstraint(Sketcher.Constraint("Equal", 51, 53))
sketch1.addConstraint(Sketcher.Constraint("Equal", 55, 58))
sketch1.addConstraint(Sketcher.Constraint("Equal", 60, 67))
sketch1.addConstraint(Sketcher.Constraint("Equal", 69, 71))
sketch1.addConstraint(Sketcher.Constraint("Diameter", 44, Q("20 mm")))
sketch1.addConstraint(Sketcher.Constraint("Radius", 0, Q("30 mm")))
sketch1.addConstraint(Sketcher.Constraint("Radius", 25, Q("1.5 mm")))
sketch1.addConstraint(Sketcher.Constraint("DistanceX", 1, 1, 1, 2, Q("2 mm")))
sketch1.addConstraint(Sketcher.Constraint("DistanceX", 3, 1, 3, 2, Q("82 mm")))
sketch1.addConstraint(Sketcher.Constraint("DistanceX", 5, 1, 5, 2, Q("22 mm")))
sketch1.addConstraint(Sketcher.Constraint("DistanceX", 24, 2, 24, 1, Q("15 mm")))
sketch1.addConstraint(Sketcher.Constraint("DistanceY", 2, 2, 2, 1, Q("35 mm")))
sketch1.addConstraint(Sketcher.Constraint("DistanceY", 11, 2, 11, 1, Q("65 mm")))
sketch1.addConstraint(Sketcher.Constraint("DistanceY", 40, 2, 40, 1, Q("60 mm")))
sketch1.addConstraint(Sketcher.Constraint("Radius", 68, Q("1.65 mm")))
sketch1.addConstraint(Sketcher.Constraint("DistanceX", 41, 3, -1, 1, Q("110 mm")))
sketch1.addConstraint(Sketcher.Constraint("DistanceX", 44, 3, -1, 1, Q("80 mm")))
sketch1.addConstraint(Sketcher.Constraint("DistanceX", 54, 3, -1, 1, Q("18.5 mm")))
sketch1.addConstraint(Sketcher.Constraint("DistanceX", 25, 3, -1, 1, Q("69.340891 mm")))
sketch1.addConstraint(Sketcher.Constraint("DistanceX", 29, 3, -1, 1, Q("29.89235 mm")))
sketch1.addConstraint(Sketcher.Constraint("DistanceY", 50, 3, -1, 1, Q("17.471421 mm")))
sketch1.addConstraint(Sketcher.Constraint("DistanceX", -1, 1, 72, 3, Q("50.690569 mm")))
sketch1.addConstraint(Sketcher.Constraint("DistanceY", -1, 1, 25, 3, Q("13.509354 mm")))
sketch1.addConstraint(Sketcher.Constraint("DistanceX", -1, 1, 33, 3, Q("16.805283 mm")))
sketch1.addConstraint(Sketcher.Constraint("DistanceX", -1, 1, 37, 3, Q("53.050738 mm")))
sketch1.addConstraint(Sketcher.Constraint("DistanceX", 46, 3, -1, 1, Q("51.302456 mm")))
sketch1.addConstraint(Sketcher.Constraint("DistanceX", -1, 1, 59, 3, Q("32.314966 mm")))
sketch1.setExpression("Constraints[164]", "Params.sketch1_diameter")
sketch1.setExpression("Constraints[165]", "Params.sketch1_radius")
sketch1.setExpression("Constraints[166]", "Params.sketch1_radius2")
sketch1.setExpression("Constraints[167]", "Params.sketch1_width")
sketch1.setExpression("Constraints[168]", "Params.sketch1_width2")
pad1 = body.newObject("PartDesign::Pad", "Pad")
pad1.Profile = sketch1
pad1.setExpression("Length", "Params.pad1_length")
pad1.Reversed = True
doc.recompute()

fillet = body.newObject("PartDesign::Fillet", "Fillet")
fillet.Base = (pad1, edges_at(pad1, [
    (-11, 1, -62.5),
    (11, 1, -62.5),
    (11, 1, 62.5),
    (-11, 1, 62.5),
]))
fillet.setExpression("Radius", "Params.fillet_radius")

# Sketch on XZ plane
sketch2 = body.newObject("Sketcher::SketchObject", "Sketch001")
sketch2.AttachmentSupport = (doc.getObject("XZ_Plane"), [""])
sketch2.MapMode = "FlatFace"
sketch2.AttachmentOffset = App.Placement(V(0, 0, -2), App.Rotation())
sketch2.addGeometry(Part.Circle(V(107, 55, 0), V(0, 0, 1), 1.5), False)
sketch2.addGeometry(Part.Circle(V(107, -55, 0), V(0, 0, 1), 1.5), False)
sketch2.addGeometry(Part.Circle(V(-107, -55, 0), V(0, 0, 1), 1.5), False)
sketch2.addGeometry(Part.Circle(V(-107, 55, 0), V(0, 0, 1), 1.5), False)
sketch2.addConstraint(Sketcher.Constraint("Equal", 0, 1))
sketch2.addConstraint(Sketcher.Constraint("Equal", 1, 2))
sketch2.addConstraint(Sketcher.Constraint("Equal", 2, 3))
sketch2.addConstraint(Sketcher.Constraint("Symmetric", 0, 3, 2, 3, -1, 1))
sketch2.addConstraint(Sketcher.Constraint("Symmetric", 1, 3, 3, 3, -1, 1))
sketch2.addConstraint(Sketcher.Constraint("Symmetric", 1, 3, 2, 3, -2))
sketch2.addConstraint(Sketcher.Constraint("Diameter", 0, Q("3 mm")))
sketch2.addConstraint(Sketcher.Constraint("DistanceX", -1, 1, 0, 3, Q("107 mm")))
sketch2.addConstraint(Sketcher.Constraint("DistanceY", -1, 1, 0, 3, Q("55 mm")))
sketch2.setExpression("Constraints[6]", "Params.sketch2_diameter")
pocket1 = body.newObject("PartDesign::Pocket", "Pocket")
pocket1.Profile = sketch2
pocket1.Type = "ThroughAll"
pocket1.Reversed = True

# Sketch on XZ plane
sketch3 = body.newObject("Sketcher::SketchObject", "Sketch002")
sketch3.AttachmentSupport = (doc.getObject("XZ_Plane"), [""])
sketch3.MapMode = "FlatFace"
sketch3.addGeometry(Part.Circle(V(0, 55, 0), V(0, 0, 1), 1.5), False)
sketch3.addGeometry(Part.Circle(V(0, -55, 0), V(0, 0, 1), 1.5), False)
sketch3.addConstraint(Sketcher.Constraint("Equal", 0, 1))
sketch3.addConstraint(Sketcher.Constraint("Symmetric", 0, 3, 1, 3, -1, 1))
sketch3.addConstraint(Sketcher.Constraint("PointOnObject", 0, 3, -2))
sketch3.addConstraint(Sketcher.Constraint("Diameter", 0, Q("3 mm")))
sketch3.addConstraint(Sketcher.Constraint("DistanceY", -1, 1, 0, 3, Q("55 mm")))
sketch3.setExpression("Constraints[3]", "Params.sketch3_diameter")
pocket2 = body.newObject("PartDesign::Pocket", "Pocket001")
pocket2.Profile = sketch3
pocket2.setExpression("Length", "Params.pocket2_length")

doc.recompute()
